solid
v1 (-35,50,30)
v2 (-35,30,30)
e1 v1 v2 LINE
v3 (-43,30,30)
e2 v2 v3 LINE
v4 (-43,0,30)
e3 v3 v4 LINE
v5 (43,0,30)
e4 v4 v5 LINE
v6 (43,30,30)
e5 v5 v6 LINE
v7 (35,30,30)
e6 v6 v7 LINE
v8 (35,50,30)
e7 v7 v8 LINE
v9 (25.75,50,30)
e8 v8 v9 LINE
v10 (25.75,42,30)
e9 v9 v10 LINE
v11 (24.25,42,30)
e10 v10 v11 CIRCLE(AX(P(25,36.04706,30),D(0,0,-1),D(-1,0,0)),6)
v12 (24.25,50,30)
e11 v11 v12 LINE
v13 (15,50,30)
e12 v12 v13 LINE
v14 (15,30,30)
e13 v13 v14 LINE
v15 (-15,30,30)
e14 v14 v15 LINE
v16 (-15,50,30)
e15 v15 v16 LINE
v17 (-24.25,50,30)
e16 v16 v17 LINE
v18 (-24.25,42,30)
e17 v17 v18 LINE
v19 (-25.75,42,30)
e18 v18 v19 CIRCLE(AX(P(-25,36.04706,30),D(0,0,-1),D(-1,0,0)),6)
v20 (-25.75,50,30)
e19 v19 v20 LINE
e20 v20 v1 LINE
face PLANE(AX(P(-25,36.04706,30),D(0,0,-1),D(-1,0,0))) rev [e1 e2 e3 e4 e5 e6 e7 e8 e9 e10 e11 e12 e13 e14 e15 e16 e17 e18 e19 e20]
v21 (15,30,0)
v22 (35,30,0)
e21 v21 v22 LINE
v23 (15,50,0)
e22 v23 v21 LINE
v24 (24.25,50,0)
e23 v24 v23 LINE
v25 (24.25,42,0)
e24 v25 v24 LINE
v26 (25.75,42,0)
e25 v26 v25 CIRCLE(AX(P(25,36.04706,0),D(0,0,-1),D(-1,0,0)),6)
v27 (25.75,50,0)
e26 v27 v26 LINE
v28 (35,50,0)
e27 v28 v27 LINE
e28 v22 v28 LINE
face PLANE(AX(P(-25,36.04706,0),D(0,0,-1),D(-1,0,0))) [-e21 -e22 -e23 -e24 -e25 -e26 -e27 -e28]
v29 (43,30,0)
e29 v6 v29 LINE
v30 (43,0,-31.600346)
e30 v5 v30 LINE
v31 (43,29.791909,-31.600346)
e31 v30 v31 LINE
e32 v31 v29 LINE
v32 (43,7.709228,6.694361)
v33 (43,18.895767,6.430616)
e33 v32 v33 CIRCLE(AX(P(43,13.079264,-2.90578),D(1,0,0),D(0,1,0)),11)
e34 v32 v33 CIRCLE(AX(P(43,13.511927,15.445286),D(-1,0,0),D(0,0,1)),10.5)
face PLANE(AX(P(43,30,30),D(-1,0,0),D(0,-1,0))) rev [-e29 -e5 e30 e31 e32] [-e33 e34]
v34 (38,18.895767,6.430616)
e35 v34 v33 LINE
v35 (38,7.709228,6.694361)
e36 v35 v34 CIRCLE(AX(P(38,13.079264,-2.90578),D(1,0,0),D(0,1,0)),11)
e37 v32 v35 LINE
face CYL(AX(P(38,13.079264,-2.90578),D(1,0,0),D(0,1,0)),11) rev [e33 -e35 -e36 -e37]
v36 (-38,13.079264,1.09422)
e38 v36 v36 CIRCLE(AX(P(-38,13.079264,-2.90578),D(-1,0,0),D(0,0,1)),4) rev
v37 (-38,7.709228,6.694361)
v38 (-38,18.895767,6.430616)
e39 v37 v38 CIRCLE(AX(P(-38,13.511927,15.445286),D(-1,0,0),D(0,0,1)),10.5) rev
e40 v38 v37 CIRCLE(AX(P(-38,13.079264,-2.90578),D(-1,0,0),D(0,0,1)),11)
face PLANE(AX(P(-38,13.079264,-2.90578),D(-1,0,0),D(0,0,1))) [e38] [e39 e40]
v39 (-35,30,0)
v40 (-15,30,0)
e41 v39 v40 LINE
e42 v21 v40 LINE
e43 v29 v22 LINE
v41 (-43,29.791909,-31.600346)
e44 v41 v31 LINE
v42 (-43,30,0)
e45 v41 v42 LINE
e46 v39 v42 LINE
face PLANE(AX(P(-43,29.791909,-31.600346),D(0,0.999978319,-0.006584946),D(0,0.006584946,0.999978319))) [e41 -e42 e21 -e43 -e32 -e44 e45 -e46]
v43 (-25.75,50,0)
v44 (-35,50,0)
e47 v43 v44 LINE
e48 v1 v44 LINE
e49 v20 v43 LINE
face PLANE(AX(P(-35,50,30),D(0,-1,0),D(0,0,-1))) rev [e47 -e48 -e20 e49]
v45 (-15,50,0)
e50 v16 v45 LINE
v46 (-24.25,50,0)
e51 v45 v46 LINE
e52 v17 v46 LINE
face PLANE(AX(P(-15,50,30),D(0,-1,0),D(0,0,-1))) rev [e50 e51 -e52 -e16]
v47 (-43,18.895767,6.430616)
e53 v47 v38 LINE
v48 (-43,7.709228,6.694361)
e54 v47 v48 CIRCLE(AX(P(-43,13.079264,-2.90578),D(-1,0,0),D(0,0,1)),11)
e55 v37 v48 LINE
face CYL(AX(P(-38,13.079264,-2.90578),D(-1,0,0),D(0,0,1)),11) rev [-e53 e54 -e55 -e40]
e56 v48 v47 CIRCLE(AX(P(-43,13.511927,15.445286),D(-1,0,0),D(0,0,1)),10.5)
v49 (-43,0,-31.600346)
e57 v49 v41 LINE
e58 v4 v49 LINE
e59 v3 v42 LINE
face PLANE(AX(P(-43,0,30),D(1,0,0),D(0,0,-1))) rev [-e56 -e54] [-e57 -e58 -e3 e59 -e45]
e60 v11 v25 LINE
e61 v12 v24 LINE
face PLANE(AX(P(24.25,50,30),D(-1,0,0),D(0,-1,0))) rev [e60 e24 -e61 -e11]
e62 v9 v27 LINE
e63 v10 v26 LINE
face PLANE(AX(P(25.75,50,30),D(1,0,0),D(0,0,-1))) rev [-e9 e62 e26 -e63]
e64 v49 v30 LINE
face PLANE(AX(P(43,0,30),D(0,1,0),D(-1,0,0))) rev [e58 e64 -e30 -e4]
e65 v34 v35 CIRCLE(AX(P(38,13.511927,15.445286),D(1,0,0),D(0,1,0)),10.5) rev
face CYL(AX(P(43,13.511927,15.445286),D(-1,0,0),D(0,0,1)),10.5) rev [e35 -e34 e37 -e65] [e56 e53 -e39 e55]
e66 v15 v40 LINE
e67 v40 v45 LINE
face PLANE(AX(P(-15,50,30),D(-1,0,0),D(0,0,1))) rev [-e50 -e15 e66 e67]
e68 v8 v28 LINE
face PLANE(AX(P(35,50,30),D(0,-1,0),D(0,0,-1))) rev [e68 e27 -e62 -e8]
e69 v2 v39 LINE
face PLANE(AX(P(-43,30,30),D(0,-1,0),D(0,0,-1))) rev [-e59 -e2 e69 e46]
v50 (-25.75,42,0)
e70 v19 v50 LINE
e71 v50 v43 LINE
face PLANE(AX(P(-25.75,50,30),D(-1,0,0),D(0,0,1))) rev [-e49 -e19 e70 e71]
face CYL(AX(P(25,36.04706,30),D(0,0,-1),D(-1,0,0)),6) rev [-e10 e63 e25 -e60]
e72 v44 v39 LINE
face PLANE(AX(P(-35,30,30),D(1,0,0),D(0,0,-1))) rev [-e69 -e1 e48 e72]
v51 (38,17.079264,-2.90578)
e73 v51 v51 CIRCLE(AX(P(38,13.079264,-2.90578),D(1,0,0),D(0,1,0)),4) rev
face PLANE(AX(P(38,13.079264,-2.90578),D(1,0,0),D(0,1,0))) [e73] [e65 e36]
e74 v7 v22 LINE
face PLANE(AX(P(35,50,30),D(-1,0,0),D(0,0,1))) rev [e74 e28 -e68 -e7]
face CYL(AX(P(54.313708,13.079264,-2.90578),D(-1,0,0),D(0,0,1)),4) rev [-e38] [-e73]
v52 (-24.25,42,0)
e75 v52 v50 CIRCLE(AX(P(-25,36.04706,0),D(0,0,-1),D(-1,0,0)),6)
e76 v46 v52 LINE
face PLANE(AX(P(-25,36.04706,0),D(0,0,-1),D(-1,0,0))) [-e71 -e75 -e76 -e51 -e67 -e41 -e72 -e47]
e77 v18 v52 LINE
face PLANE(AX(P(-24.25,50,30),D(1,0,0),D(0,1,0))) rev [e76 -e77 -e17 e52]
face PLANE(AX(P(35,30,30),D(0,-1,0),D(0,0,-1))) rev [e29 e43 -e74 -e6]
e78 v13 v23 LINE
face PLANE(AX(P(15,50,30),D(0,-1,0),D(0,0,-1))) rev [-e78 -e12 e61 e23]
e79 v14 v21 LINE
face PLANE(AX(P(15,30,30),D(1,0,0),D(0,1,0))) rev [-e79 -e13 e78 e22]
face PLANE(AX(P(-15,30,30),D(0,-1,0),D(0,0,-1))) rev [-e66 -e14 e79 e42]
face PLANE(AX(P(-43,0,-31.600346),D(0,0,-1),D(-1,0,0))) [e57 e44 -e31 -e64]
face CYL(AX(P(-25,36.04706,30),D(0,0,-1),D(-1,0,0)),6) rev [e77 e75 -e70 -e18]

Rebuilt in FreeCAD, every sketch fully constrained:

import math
import FreeCAD as App
import Part
import Sketcher


def add_polygon(sketch, points):
    """Adds a closed chain of lines whose ends are joined by coincident constraints."""
    first, n = sketch.GeometryCount, len(points)
    for a, b in zip(points, points[1:] + points[:1]):
        sketch.addGeometry(Part.LineSegment(App.Vector(*a, 0), App.Vector(*b, 0)), False)
    for i in range(n):
        sketch.addConstraint(Sketcher.Constraint("Coincident", first + i, 2, first + (i + 1) % n, 1))

doc = App.newDocument("Part")
params = doc.addObject("Spreadsheet::Sheet", "Params")
for row, (alias, value) in enumerate([
    ("sketch1_radius", "6 mm"),
    ("sketch1_width", "86 mm"),
    ("sketch1_width2", "8 mm"),
    ("sketch1_width3", "30 mm"),
    ("sketch1_height", "20 mm"),
    ("pad1_length", "30 mm"),
    ("sketch2_diameter", "21 mm"),
    ("sketch3_width", "30 mm"),
    ("pad2_length", "86 mm"),
    ("sketch4_diameter", "8 mm"),
    ("pocket2_length", "86 mm"),
    ("sketch5_diameter", "22 mm"),
    ("pocket3_length", "5 mm"),
    ("sketch6_diameter", "22 mm"),
    ("pocket4_length", "5 mm"),
], start=1):
    params.set(f"A{row}", alias)
    params.set(f"B{row}", "=" + value)
    params.setAlias(f"B{row}", alias)

body = doc.addObject("PartDesign::Body", "Body")

# Sketch on XY plane
sketch1 = body.newObject("Sketcher::SketchObject", "Sketch")
sketch1.AttachmentSupport = (doc.getObject("XY_Plane"), [""])
sketch1.MapMode = "FlatFace"
sketch1.addGeometry(Part.LineSegment(App.Vector(-43, 30, 0), App.Vector(-43, 0, 0)), False)
sketch1.addGeometry(Part.LineSegment(App.Vector(-43, 0, 0), App.Vector(43, 0, 0)), False)
sketch1.addGeometry(Part.LineSegment(App.Vector(43, 0, 0), App.Vector(43, 30, 0)), False)
sketch1.addGeometry(Part.LineSegment(App.Vector(43, 30, 0), App.Vector(35, 30, 0)), False)
sketch1.addGeometry(Part.LineSegment(App.Vector(35, 30, 0), App.Vector(35, 50, 0)), False)
sketch1.addGeometry(Part.LineSegment(App.Vector(35, 50, 0), App.Vector(25.8, 50, 0)), False)
sketch1.addGeometry(Part.LineSegment(App.Vector(25.8, 50, 0), App.Vector(25.8, 42, 0)), False)
sketch1.addGeometry(Part.ArcOfCircle(Part.Circle(App.Vector(25, 36, 0), App.Vector(0, 0, 1), 6), math.radians(97), math.radians(443)), False)
sketch1.addGeometry(Part.LineSegment(App.Vector(24.2, 42, 0), App.Vector(24.2, 50, 0)), False)
sketch1.addGeometry(Part.LineSegment(App.Vector(24.2, 50, 0), App.Vector(15, 50, 0)), False)
sketch1.addGeometry(Part.LineSegment(App.Vector(15, 50, 0), App.Vector(15, 30, 0)), False)
sketch1.addGeometry(Part.LineSegment(App.Vector(15, 30, 0), App.Vector(-15, 30, 0)), False)
sketch1.addGeometry(Part.LineSegment(App.Vector(-15, 30, 0), App.Vector(-15, 50, 0)), False)
sketch1.addGeometry(Part.LineSegment(App.Vector(-15, 50, 0), App.Vector(-24.2, 50, 0)), False)
sketch1.addGeometry(Part.LineSegment(App.Vector(-24.2, 50, 0), App.Vector(-24.2, 42, 0)), False)
sketch1.addGeometry(Part.ArcOfCircle(Part.Circle(App.Vector(-25, 36, 0), App.Vector(0, 0, 1), 6), math.radians(97), math.radians(443)), False)
sketch1.addGeometry(Part.LineSegment(App.Vector(-25.8, 42, 0), App.Vector(-25.8, 50, 0)), False)
sketch1.addGeometry(Part.LineSegment(App.Vector(-25.8, 50, 0), App.Vector(-35, 50, 0)), False)
sketch1.addGeometry(Part.LineSegment(App.Vector(-35, 50, 0), App.Vector(-35, 30, 0)), False)
sketch1.addGeometry(Part.LineSegment(App.Vector(-35, 30, 0), App.Vector(-43, 30, 0)), False)
sketch1.addConstraint(Sketcher.Constraint("Coincident", 0, 2, 1, 1))
sketch1.addConstraint(Sketcher.Constraint("Coincident", 1, 2, 2, 1))
sketch1.addConstraint(Sketcher.Constraint("Coincident", 2, 2, 3, 1))
sketch1.addConstraint(Sketcher.Constraint("Coincident", 3, 2, 4, 1))
sketch1.addConstraint(Sketcher.Constraint("Coincident", 4, 2, 5, 1))
sketch1.addConstraint(Sketcher.Constraint("Coincident", 5, 2, 6, 1))
sketch1.addConstraint(Sketcher.Constraint("Coincident", 6, 2, 7, 2))
sketch1.addConstraint(Sketcher.Constraint("Coincident", 7, 1, 8, 1))
sketch1.addConstraint(Sketcher.Constraint("Coincident", 8, 2, 9, 1))
sketch1.addConstraint(Sketcher.Constraint("Coincident", 9, 2, 10, 1))
sketch1.addConstraint(Sketcher.Constraint("Coincident", 10, 2, 11, 1))
sketch1.addConstraint(Sketcher.Constraint("Coincident", 11, 2, 12, 1))
sketch1.addConstraint(Sketcher.Constraint("Coincident", 12, 2, 13, 1))
sketch1.addConstraint(Sketcher.Constraint("Coincident", 13, 2, 14, 1))
sketch1.addConstraint(Sketcher.Constraint("Coincident", 14, 2, 15, 2))
sketch1.addConstraint(Sketcher.Constraint("Coincident", 15, 1, 16, 1))
sketch1.addConstraint(Sketcher.Constraint("Coincident", 16, 2, 17, 1))
sketch1.addConstraint(Sketcher.Constraint("Coincident", 17, 2, 18, 1))
sketch1.addConstraint(Sketcher.Constraint("Coincident", 18, 2, 19, 1))
sketch1.addConstraint(Sketcher.Constraint("Coincident", 19, 2, 0, 1))
sketch1.addConstraint(Sketcher.Constraint("Vertical", 0))
sketch1.addConstraint(Sketcher.Constraint("Horizontal", 1))
sketch1.addConstraint(Sketcher.Constraint("Vertical", 2))
sketch1.addConstraint(Sketcher.Constraint("Horizontal", 3))
sketch1.addConstraint(Sketcher.Constraint("Vertical", 4))
sketch1.addConstraint(Sketcher.Constraint("Horizontal", 5))
sketch1.addConstraint(Sketcher.Constraint("Vertical", 6))
sketch1.addConstraint(Sketcher.Constraint("Vertical", 8))
sketch1.addConstraint(Sketcher.Constraint("Horizontal", 9))
sketch1.addConstraint(Sketcher.Constraint("Vertical", 10))
sketch1.addConstraint(Sketcher.Constraint("Horizontal", 11))
sketch1.addConstraint(Sketcher.Constraint("Vertical", 12))
sketch1.addConstraint(Sketcher.Constraint("Horizontal", 13))
sketch1.addConstraint(Sketcher.Constraint("Vertical", 14))
sketch1.addConstraint(Sketcher.Constraint("Vertical", 16))
sketch1.addConstraint(Sketcher.Constraint("Horizontal", 17))
sketch1.addConstraint(Sketcher.Constraint("Vertical", 18))
sketch1.addConstraint(Sketcher.Constraint("Horizontal", 19))
sketch1.addConstraint(Sketcher.Constraint("Equal", 7, 15))
sketch1.addConstraint(Sketcher.Constraint("Symmetric", 0, 2, 1, 2, -1, 1))
sketch1.addConstraint(Sketcher.Constraint("Symmetric", 7, 3, 15, 3, -2))
sketch1.addConstraint(Sketcher.Constraint("Symmetric", 9, 2, 12, 2, -2))
sketch1.addConstraint(Sketcher.Constraint("Symmetric", 5, 2, 16, 2, -2))
sketch1.addConstraint(Sketcher.Constraint("Symmetric", 3, 2, 18, 2, -2))
sketch1.addConstraint(Sketcher.Constraint("Horizontal", 6, 2, 7, 1))
sketch1.addConstraint(Sketcher.Constraint("Horizontal", 5, 2, 8, 2))
sketch1.addConstraint(Sketcher.Constraint("Horizontal", 3, 2, 10, 2))
sketch1.addConstraint(Sketcher.Constraint("Horizontal", 7, 1, 14, 2))
sketch1.addConstraint(Sketcher.Constraint("Equal", 5, 9))
sketch1.addConstraint(Sketcher.Constraint("Equal", 11, 0))
sketch1.addConstraint(Sketcher.Constraint("Equal", 19, 6))
sketch1.addConstraint(Sketcher.Constraint("Radius", 7, 6.0))
sketch1.addConstraint(Sketcher.Constraint("DistanceX", 1, 1, 1, 2, 86.0))
sketch1.addConstraint(Sketcher.Constraint("DistanceX", 3, 2, 3, 1, 8.0))
sketch1.addConstraint(Sketcher.Constraint("DistanceX", 11, 2, 11, 1, 30.0))
sketch1.addConstraint(Sketcher.Constraint("DistanceY", 4, 1, 4, 2, 20.0))
sketch1.addConstraint(Sketcher.Constraint("DistanceX", 5, 2, 5, 1, 9.25))
sketch1.setExpression("Constraints[51]", "Params.sketch1_radius")
sketch1.setExpression("Constraints[52]", "Params.sketch1_width")
sketch1.setExpression("Constraints[53]", "Params.sketch1_width2")
sketch1.setExpression("Constraints[54]", "Params.sketch1_width3")
sketch1.setExpression("Constraints[55]", "Params.sketch1_height")
pad1 = body.newObject("PartDesign::Pad", "Pad")
pad1.Profile = sketch1
pad1.setExpression("Length", "Params.pad1_length")

# Sketch on YZ plane
sketch2 = body.newObject("Sketcher::SketchObject", "Sketch001")
sketch2.AttachmentSupport = (doc.getObject("YZ_Plane"), [""])
sketch2.MapMode = "FlatFace"
sketch2.AttachmentOffset = App.Placement(App.Vector(0, 0, -43), App.Rotation())
sketch2.addGeometry(Part.Circle(App.Vector(14, 15, 0), App.Vector(0, 0, 1), 10), False)
sketch2.addConstraint(Sketcher.Constraint("Diameter", 0, 21.0))
sketch2.addConstraint(Sketcher.Constraint("DistanceX", -1, 1, 0, 3, 13.511927))
sketch2.addConstraint(Sketcher.Constraint("DistanceY", -1, 1, 0, 3, 15.445286))
sketch2.setExpression("Constraints[0]", "Params.sketch2_diameter")
pocket1 = body.newObject("PartDesign::Pocket", "Pocket")
pocket1.Profile = sketch2
pocket1.Type = "ThroughAll"
pocket1.Reversed = True

# Sketch on YZ plane
sketch3 = body.newObject("Sketcher::SketchObject", "Sketch002")
sketch3.AttachmentSupport = (doc.getObject("YZ_Plane"), [""])
sketch3.MapMode = "FlatFace"
sketch3.AttachmentOffset = App.Placement(App.Vector(0, 0, 43), App.Rotation())
add_polygon(sketch3, [(0, 0), (0, -32), (30, -32), (30, 0)])  # lines 0-3
sketch3.addConstraint(Sketcher.Constraint("Vertical", 0))
sketch3.addConstraint(Sketcher.Constraint("Horizontal", 1))
sketch3.addConstraint(Sketcher.Constraint("Horizontal", 3))
sketch3.addConstraint(Sketcher.Constraint("Coincident", 3, 2, -1, 1))
sketch3.addConstraint(Sketcher.Constraint("DistanceX", 3, 2, 3, 1, 30.0))
sketch3.addConstraint(Sketcher.Constraint("DistanceX", 1, 1, 1, 2, 29.791909))
sketch3.addConstraint(Sketcher.Constraint("Distance", 2, 31.601031))
sketch3.setExpression("Constraints[8]", "Params.sketch3_width")
pad2 = body.newObject("PartDesign::Pad", "Pad001")
pad2.Profile = sketch3
pad2.setExpression("Length", "Params.pad2_length")
pad2.Reversed = True

# Sketch on YZ plane
sketch4 = body.newObject("Sketcher::SketchObject", "Sketch003")
sketch4.AttachmentSupport = (doc.getObject("YZ_Plane"), [""])
sketch4.MapMode = "FlatFace"
sketch4.AttachmentOffset = App.Placement(App.Vector(0, 0, -43), App.Rotation())
sketch4.addGeometry(Part.Circle(App.Vector(13.1, -2.9, 0), App.Vector(0, 0, 1), 4), False)
sketch4.addConstraint(Sketcher.Constraint("Diameter", 0, 8.0))
sketch4.addConstraint(Sketcher.Constraint("DistanceY", 0, 3, -1, 1, 2.90578))
sketch4.addConstraint(Sketcher.Constraint("DistanceX", -1, 1, 0, 3, 13.079264))
sketch4.setExpression("Constraints[0]", "Params.sketch4_diameter")
pocket2 = body.newObject("PartDesign::Pocket", "Pocket001")
pocket2.Profile = sketch4
pocket2.setExpression("Length", "Params.pocket2_length")
pocket2.Reversed = True

# Sketch on YZ plane
sketch5 = body.newObject("Sketcher::SketchObject", "Sketch004")
sketch5.AttachmentSupport = (doc.getObject("YZ_Plane"), [""])
sketch5.MapMode = "FlatFace"
sketch5.AttachmentOffset = App.Placement(App.Vector(0, 0, -43), App.Rotation())
sketch5.addGeometry(Part.Circle(App.Vector(13, -3, 0), App.Vector(0, 0, 1), 11), False)
sketch5.addConstraint(Sketcher.Constraint("Diameter", 0, 22.0))
sketch5.addConstraint(Sketcher.Constraint("DistanceY", 0, 3, -1, 1, 2.90578))
sketch5.addConstraint(Sketcher.Constraint("DistanceX", -1, 1, 0, 3, 13.079264))
sketch5.setExpression("Constraints[0]", "Params.sketch5_diameter")
pocket3 = body.newObject("PartDesign::Pocket", "Pocket002")
pocket3.Profile = sketch5
pocket3.setExpression("Length", "Params.pocket3_length")
pocket3.Reversed = True

# Sketch on YZ plane
sketch6 = body.newObject("Sketcher::SketchObject", "Sketch005")
sketch6.AttachmentSupport = (doc.getObject("YZ_Plane"), [""])
sketch6.MapMode = "FlatFace"
sketch6.AttachmentOffset = App.Placement(App.Vector(0, 0, 38), App.Rotation())
sketch6.addGeometry(Part.Circle(App.Vector(13, -3, 0), App.Vector(0, 0, 1), 11), False)
sketch6.addConstraint(Sketcher.Constraint("Diameter", 0, 22.0))
sketch6.addConstraint(Sketcher.Constraint("DistanceY", 0, 3, -1, 1, 2.90578))
sketch6.addConstraint(Sketcher.Constraint("DistanceX", -1, 1, 0, 3, 13.079264))
sketch6.setExpression("Constraints[0]", "Params.sketch6_diameter")
pocket4 = body.newObject("PartDesign::Pocket", "Pocket003")
pocket4.Profile = sketch6
pocket4.setExpression("Length", "Params.pocket4_length")
pocket4.Reversed = True

doc.recompute()
